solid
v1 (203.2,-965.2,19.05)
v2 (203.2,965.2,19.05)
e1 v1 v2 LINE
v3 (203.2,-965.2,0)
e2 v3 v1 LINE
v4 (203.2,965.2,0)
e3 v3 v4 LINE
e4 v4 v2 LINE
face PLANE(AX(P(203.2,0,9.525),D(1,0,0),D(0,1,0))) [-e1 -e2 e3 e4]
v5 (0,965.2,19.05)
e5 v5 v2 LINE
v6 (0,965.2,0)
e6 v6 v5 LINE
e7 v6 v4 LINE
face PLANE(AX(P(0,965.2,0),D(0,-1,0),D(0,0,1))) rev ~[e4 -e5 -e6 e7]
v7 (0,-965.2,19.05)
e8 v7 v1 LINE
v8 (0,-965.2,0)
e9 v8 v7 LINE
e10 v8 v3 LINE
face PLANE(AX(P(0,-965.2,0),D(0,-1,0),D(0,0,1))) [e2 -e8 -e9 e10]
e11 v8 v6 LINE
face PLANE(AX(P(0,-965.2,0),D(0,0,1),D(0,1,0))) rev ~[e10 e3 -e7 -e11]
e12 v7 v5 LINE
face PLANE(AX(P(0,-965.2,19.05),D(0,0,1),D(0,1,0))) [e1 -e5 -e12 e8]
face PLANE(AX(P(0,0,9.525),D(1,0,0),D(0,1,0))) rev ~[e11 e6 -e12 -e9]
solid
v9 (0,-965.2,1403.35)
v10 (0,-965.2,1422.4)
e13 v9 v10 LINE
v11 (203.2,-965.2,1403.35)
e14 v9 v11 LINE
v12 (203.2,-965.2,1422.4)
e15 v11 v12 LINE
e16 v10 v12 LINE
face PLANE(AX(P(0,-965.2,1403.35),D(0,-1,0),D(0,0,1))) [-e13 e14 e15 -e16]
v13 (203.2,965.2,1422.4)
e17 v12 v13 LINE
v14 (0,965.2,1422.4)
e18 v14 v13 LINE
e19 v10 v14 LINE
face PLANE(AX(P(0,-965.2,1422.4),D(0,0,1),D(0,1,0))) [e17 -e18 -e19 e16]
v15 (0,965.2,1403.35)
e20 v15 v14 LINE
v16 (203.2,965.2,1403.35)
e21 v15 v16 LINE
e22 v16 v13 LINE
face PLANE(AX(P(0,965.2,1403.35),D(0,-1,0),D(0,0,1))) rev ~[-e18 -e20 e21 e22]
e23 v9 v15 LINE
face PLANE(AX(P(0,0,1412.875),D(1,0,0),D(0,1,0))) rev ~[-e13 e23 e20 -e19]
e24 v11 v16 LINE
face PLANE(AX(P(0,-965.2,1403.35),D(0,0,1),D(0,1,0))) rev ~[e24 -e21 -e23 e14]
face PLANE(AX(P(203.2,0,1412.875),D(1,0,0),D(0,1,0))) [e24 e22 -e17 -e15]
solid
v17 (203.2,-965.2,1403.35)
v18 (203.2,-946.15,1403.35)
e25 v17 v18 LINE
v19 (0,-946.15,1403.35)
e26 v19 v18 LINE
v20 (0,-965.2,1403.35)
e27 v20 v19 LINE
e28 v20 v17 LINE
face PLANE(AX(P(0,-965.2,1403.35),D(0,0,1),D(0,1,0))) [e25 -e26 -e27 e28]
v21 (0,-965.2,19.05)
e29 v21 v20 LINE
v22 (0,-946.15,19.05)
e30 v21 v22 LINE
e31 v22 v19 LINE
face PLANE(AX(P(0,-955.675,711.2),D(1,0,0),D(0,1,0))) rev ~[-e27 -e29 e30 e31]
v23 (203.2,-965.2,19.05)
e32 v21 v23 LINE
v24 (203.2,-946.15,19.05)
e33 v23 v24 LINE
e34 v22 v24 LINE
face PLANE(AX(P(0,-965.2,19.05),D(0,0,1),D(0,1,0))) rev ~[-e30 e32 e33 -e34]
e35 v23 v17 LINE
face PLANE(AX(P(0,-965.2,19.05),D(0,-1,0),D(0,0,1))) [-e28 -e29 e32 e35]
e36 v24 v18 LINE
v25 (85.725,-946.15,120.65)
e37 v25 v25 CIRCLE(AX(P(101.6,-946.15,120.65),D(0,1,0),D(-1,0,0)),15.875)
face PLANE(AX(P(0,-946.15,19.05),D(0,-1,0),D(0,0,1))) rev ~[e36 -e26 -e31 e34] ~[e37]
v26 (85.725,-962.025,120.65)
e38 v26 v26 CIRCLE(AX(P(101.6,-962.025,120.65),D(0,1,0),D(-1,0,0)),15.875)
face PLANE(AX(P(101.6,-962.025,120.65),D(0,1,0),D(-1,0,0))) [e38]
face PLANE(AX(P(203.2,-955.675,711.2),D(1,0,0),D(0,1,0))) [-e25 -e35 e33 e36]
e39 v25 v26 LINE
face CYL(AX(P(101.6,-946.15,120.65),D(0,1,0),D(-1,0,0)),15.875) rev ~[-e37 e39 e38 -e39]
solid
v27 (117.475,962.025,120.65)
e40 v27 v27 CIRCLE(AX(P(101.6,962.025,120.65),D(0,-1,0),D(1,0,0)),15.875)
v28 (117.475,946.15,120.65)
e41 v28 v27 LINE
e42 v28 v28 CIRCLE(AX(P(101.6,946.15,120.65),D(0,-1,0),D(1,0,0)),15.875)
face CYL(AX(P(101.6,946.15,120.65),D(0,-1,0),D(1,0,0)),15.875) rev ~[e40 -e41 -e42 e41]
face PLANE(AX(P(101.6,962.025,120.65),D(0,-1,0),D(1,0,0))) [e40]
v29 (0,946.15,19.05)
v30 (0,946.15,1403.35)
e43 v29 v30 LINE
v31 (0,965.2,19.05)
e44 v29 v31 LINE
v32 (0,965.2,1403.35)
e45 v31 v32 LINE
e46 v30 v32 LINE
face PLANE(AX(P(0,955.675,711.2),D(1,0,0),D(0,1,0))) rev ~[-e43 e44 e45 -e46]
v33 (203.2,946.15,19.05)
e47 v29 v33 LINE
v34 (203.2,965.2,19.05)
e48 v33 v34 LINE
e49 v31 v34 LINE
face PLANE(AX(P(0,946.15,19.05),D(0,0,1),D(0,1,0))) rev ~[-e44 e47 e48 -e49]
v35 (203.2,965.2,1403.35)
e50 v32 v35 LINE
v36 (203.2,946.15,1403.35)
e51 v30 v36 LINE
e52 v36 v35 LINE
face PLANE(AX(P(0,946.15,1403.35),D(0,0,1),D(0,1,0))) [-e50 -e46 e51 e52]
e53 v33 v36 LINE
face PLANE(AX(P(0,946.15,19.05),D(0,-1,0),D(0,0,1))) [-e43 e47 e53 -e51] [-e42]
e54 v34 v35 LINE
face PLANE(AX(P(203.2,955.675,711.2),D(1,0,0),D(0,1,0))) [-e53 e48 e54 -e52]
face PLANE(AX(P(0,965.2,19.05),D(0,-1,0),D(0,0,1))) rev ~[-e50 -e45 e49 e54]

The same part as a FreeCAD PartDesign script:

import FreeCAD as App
import Part
import Sketcher

V = App.Vector
Q = App.Units.Quantity


def add_polygon(sketch, points):
    """Adds a closed chain of lines whose ends are joined by coincident constraints."""
    first, n = sketch.GeometryCount, len(points)
    for a, b in zip(points, points[1:] + points[:1]):
        sketch.addGeometry(Part.LineSegment(App.Vector(*a, 0), App.Vector(*b, 0)), False)
    for i in range(n):
        sketch.addConstraint(Sketcher.Constraint("Coincident", first + i, 2, first + (i + 1) % n, 1))

doc = App.newDocument("Part")
params = doc.addObject("Spreadsheet::Sheet", "Params")
for row, (alias, value) in enumerate([
    ("sketch1_width", "76 in"),
    ("sketch1_height", "0.75 in"),
    ("pad1_length", "8 in"),
    ("sketch2_height", "54.5 in"),
    ("sketch2_width", "0.75 in"),
    ("pad2_length", "8 in"),
    ("sketch3_diameter", "1.25 in"),
    ("pocket1_length", "0.625 in"),
    ("sketch4_diameter", "1.25 in"),
    ("pocket2_length", "0.625 in"),
], start=1):
    params.set(f"A{row}", alias)
    params.set(f"B{row}", "=" + value)
    params.setAlias(f"B{row}", alias)

body = doc.addObject("PartDesign::Body", "Body")
body.AllowCompound = True

# Sketch on YZ plane
sketch1 = body.newObject("Sketcher::SketchObject", "Sketch")
sketch1.AttachmentSupport = (doc.getObject("YZ_Plane"), [""])
sketch1.MapMode = "FlatFace"
add_polygon(sketch1, [(-965, 19), (-965, 0), (965, 0), (965, 19)])  # lines 0-3
add_polygon(sketch1, [(-965, 1422), (-965, 1403), (965, 1403), (965, 1422)])  # lines 4-7
sketch1.addConstraint([
    Sketcher.Constraint("Vertical", 0),
    Sketcher.Constraint("Horizontal", 1),
    Sketcher.Constraint("Vertical", 2),
    Sketcher.Constraint("Horizontal", 3),
    Sketcher.Constraint("Vertical", 4),
    Sketcher.Constraint("Horizontal", 5),
    Sketcher.Constraint("Vertical", 6),
    Sketcher.Constraint("Horizontal", 7),
    Sketcher.Constraint("Symmetric", 0, 2, 1, 2, -1, 1),
    Sketcher.Constraint("Vertical", 3, 2, 4, 2),
    Sketcher.Constraint("Vertical", 2, 2, 5, 2),
    Sketcher.Constraint("Equal", 2, 4),
    Sketcher.Constraint("DistanceX", 1, 1, 1, 2, Q("76 in")),
    Sketcher.Constraint("DistanceY", -1, 1, 6, 2, Q("56 in")),
    Sketcher.Constraint("DistanceY", 0, 2, 0, 1, Q("0.75 in")),
])
sketch1.setExpression("Constraints[20]", "Params.sketch1_width")
sketch1.setExpression("Constraints[22]", "Params.sketch1_height")
pad1 = body.newObject("PartDesign::Pad", "Pad")
pad1.Profile = sketch1
pad1.setExpression("Length", "Params.pad1_length")
body2 = doc.addObject("PartDesign::Body", "Body001")
body2.AllowCompound = True

# Sketch on YZ plane
sketch2 = body2.newObject("Sketcher::SketchObject", "Sketch001")
sketch2.AttachmentSupport = (doc.getObject("YZ_Plane001"), [""])
sketch2.MapMode = "FlatFace"
add_polygon(sketch2, [(-965, 1403), (-965, 19), (-946, 19), (-946, 1403)])  # lines 0-3
add_polygon(sketch2, [(946, 1403), (946, 19), (965, 19), (965, 1403)])  # lines 4-7
sketch2.addConstraint([
    Sketcher.Constraint("Vertical", 0),
    Sketcher.Constraint("Horizontal", 1),
    Sketcher.Constraint("Vertical", 2),
    Sketcher.Constraint("Horizontal", 3),
    Sketcher.Constraint("Vertical", 4),
    Sketcher.Constraint("Horizontal", 5),
    Sketcher.Constraint("Vertical", 6),
    Sketcher.Constraint("Horizontal", 7),
    Sketcher.Constraint("Symmetric", 1, 2, 4, 2, -2),
    Sketcher.Constraint("Symmetric", 3, 2, 6, 2, -2),
    Sketcher.Constraint("DistanceY", 0, 2, 0, 1, Q("54.5 in")),
    Sketcher.Constraint("DistanceX", 0, 2, -1, 1, Q("38 in")),
    Sketcher.Constraint("DistanceX", 1, 1, 1, 2, Q("0.75 in")),
    Sketcher.Constraint("DistanceY", -1, 1, 0, 2, Q("0.75 in")),
])
sketch2.setExpression("Constraints[18]", "Params.sketch2_height")
sketch2.setExpression("Constraints[20]", "Params.sketch2_width")
pad2 = body2.newObject("PartDesign::Pad", "Pad001")
pad2.Profile = sketch2
pad2.setExpression("Length", "Params.pad2_length")

# Sketch on XZ plane
sketch3 = body2.newObject("Sketcher::SketchObject", "Sketch002")
sketch3.AttachmentSupport = (doc.getObject("XZ_Plane001"), [""])
sketch3.MapMode = "FlatFace"
sketch3.AttachmentOffset = App.Placement(V(0, 0, 37.25 * 25.4), App.Rotation())
sketch3.addGeometry(Part.Circle(V(102, 121, 0), V(0, 0, 1), 16), False)
sketch3.addConstraint([
    Sketcher.Constraint("Diameter", 0, Q("1.25 in")),
    Sketcher.Constraint("DistanceX", -1, 1, 0, 3, Q("4 in")),
    Sketcher.Constraint("DistanceY", -1, 1, 0, 3, Q("4.75 in")),
])
sketch3.setExpression("Constraints[0]", "Params.sketch3_diameter")
pocket1 = body2.newObject("PartDesign::Pocket", "Pocket")
pocket1.Profile = sketch3
pocket1.setExpression("Length", "Params.pocket1_length")
pocket1.Reversed = True

# Sketch on XZ plane
sketch4 = body2.newObject("Sketcher::SketchObject", "Sketch003")
sketch4.AttachmentSupport = (doc.getObject("XZ_Plane001"), [""])
sketch4.MapMode = "FlatFace"
sketch4.AttachmentOffset = App.Placement(V(0, 0, -37.25 * 25.4), App.Rotation())
sketch4.addGeometry(Part.Circle(V(102, 121, 0), V(0, 0, 1), 16), False)
sketch4.addConstraint([
    Sketcher.Constraint("Diameter", 0, Q("1.25 in")),
    Sketcher.Constraint("DistanceX", -1, 1, 0, 3, Q("4 in")),
    Sketcher.Constraint("DistanceY", -1, 1, 0, 3, Q("4.75 in")),
])
sketch4.setExpression("Constraints[0]", "Params.sketch4_diameter")
pocket2 = body2.newObject("PartDesign::Pocket", "Pocket001")
pocket2.Profile = sketch4
pocket2.setExpression("Length", "Params.pocket2_length")

doc.recompute()
